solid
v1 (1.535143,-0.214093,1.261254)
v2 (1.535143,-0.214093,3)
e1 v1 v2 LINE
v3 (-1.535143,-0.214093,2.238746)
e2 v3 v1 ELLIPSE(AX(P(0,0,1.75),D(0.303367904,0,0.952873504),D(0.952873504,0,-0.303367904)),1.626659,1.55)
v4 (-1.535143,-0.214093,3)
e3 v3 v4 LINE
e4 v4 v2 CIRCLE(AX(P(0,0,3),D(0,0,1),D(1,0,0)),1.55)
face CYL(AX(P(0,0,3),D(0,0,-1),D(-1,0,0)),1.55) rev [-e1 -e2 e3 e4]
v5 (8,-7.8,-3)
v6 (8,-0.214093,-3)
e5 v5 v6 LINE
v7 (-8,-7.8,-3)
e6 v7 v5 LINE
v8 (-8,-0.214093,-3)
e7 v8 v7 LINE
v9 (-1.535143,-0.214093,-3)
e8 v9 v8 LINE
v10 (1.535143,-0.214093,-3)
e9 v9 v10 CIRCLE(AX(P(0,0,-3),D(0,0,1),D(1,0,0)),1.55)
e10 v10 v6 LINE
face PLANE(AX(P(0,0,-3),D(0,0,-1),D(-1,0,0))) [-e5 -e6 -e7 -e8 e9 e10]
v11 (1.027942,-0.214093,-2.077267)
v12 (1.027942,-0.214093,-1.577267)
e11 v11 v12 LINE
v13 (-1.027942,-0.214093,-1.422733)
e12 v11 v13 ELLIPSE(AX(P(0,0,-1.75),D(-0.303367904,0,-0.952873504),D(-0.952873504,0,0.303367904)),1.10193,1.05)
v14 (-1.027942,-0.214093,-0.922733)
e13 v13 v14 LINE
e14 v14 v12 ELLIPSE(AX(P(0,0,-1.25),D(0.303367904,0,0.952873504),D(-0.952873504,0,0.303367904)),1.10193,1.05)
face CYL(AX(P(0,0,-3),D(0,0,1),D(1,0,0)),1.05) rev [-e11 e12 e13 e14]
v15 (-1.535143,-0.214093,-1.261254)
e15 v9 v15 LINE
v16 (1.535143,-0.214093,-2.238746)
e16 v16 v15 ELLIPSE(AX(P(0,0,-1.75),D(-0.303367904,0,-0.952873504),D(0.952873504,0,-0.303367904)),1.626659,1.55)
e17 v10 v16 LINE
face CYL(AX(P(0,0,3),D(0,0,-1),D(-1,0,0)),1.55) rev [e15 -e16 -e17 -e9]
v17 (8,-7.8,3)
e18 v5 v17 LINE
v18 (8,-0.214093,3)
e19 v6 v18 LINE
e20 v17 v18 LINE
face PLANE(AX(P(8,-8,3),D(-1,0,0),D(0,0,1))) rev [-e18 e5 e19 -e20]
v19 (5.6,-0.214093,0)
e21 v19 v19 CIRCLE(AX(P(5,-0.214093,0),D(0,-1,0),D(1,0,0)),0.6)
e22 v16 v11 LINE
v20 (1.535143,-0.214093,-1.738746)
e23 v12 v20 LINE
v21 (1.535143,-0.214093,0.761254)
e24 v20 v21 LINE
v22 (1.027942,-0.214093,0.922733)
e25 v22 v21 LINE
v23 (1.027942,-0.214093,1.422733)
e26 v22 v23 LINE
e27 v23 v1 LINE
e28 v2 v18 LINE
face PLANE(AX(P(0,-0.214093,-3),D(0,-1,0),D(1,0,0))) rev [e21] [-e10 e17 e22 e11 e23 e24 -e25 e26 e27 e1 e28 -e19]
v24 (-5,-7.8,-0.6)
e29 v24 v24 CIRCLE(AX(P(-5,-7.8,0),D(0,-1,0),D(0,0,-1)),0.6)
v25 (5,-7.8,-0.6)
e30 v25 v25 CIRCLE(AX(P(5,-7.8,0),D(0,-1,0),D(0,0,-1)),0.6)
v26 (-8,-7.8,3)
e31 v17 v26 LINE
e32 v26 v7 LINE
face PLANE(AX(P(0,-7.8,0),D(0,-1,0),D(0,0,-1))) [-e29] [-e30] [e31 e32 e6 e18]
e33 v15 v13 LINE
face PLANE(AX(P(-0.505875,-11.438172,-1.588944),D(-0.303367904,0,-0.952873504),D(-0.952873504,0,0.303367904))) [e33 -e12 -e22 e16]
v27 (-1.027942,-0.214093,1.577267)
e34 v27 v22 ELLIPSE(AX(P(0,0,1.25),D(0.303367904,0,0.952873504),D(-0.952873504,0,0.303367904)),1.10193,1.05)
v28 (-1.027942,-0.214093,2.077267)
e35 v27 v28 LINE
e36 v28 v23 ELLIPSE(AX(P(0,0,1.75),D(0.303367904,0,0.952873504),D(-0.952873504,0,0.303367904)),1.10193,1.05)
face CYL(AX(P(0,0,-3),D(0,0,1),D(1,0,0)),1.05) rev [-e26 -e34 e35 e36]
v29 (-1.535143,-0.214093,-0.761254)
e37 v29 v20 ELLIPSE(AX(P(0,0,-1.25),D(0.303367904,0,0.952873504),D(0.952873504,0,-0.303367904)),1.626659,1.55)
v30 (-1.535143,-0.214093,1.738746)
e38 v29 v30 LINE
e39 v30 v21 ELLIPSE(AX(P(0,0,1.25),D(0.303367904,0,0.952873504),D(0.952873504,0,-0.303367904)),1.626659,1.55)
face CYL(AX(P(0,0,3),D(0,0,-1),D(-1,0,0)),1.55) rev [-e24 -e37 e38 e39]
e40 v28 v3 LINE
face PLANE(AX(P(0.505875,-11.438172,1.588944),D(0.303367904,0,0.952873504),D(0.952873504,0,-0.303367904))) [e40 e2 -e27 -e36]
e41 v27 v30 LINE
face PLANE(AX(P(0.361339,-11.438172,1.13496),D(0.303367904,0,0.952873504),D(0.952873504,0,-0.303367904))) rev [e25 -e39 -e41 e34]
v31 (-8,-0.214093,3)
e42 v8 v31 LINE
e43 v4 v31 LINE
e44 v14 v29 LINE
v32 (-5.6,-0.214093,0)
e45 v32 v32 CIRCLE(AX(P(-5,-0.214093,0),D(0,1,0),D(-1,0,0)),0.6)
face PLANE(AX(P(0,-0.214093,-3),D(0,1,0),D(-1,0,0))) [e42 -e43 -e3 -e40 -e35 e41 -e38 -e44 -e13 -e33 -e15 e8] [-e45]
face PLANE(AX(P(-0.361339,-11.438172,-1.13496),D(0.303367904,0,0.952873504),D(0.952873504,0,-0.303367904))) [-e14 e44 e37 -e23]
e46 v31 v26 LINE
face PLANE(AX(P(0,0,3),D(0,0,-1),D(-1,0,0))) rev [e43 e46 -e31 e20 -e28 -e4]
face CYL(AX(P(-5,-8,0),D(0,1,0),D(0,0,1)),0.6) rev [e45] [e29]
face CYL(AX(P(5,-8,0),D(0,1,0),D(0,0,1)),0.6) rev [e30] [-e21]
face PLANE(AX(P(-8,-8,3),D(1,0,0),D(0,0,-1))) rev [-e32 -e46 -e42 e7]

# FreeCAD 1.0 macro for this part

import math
import FreeCAD as App
import Part
import Sketcher

V = App.Vector
Q = App.Units.Quantity


def add_polygon(sketch, points):
    """Adds a closed chain of lines whose ends are joined by coincident constraints."""
    first, n = sketch.GeometryCount, len(points)
    for a, b in zip(points, points[1:] + points[:1]):
        sketch.addGeometry(Part.LineSegment(App.Vector(*a, 0), App.Vector(*b, 0)), False)
    for i in range(n):
        sketch.addConstraint(Sketcher.Constraint("Coincident", first + i, 2, first + (i + 1) % n, 1))

doc = App.newDocument("Part")
params = doc.addObject("Spreadsheet::Sheet", "Params")
for row, (alias, value) in enumerate([
    ("sketch1_diameter", "3.1 mm"),
    ("sketch1_width", "16 mm"),
    ("pad1_length", "6 mm"),
    ("sketch2_height", "0.5 mm"),
    ("pad2_length", "8 mm"),
    ("sketch3_width", "16 mm"),
    ("sketch3_radius", "1.05 mm"),
    ("sketch4_diameter", "1.2 mm"),
    ("sketch5_diameter", "1.2 mm"),
    ("sketch5_width", "16 mm"),
    ("sketch5_height", "6 mm"),
    ("pocket3_length", "0.2 mm"),
], start=1):
    params.set(f"A{row}", alias)
    params.set(f"B{row}", "=" + value)
    params.setAlias(f"B{row}", alias)

body = doc.addObject("PartDesign::Body", "Body")

# Sketch on XY plane
sketch1 = body.newObject("Sketcher::SketchObject", "Sketch")
sketch1.AttachmentSupport = (doc.getObject("XY_Plane"), [""])
sketch1.MapMode = "FlatFace"
add_polygon(sketch1, [(-8, 8), (-8, -8), (8, -8), (8, 8)])  # lines 0-3
sketch1.addGeometry(Part.Circle(V(0, 0, 0), V(0, 0, 1), 1.6), False)  # 4
sketch1.addConstraint([
    Sketcher.Constraint("Vertical", 0),
    Sketcher.Constraint("Horizontal", 1),
    Sketcher.Constraint("Vertical", 2),
    Sketcher.Constraint("Horizontal", 3),
    Sketcher.Constraint("Coincident", 4, 3, -1, 1),
    Sketcher.Constraint("Symmetric", 0, 2, 2, 2, -1, 1),
    Sketcher.Constraint("Equal", 3, 0),
    Sketcher.Constraint("Diameter", 4, 3.1),
    Sketcher.Constraint("DistanceX", 1, 1, 1, 2, 16.0),
])
sketch1.setExpression("Constraints[11]", "Params.sketch1_diameter")
sketch1.setExpression("Constraints[12]", "Params.sketch1_width")
pad1 = body.newObject("PartDesign::Pad", "Pad")
pad1.Profile = sketch1
pad1.setExpression("Length", "Params.pad1_length")
pad1.Midplane = True

# Sketch on XZ plane
sketch2 = body.newObject("Sketcher::SketchObject", "Sketch001")
sketch2.AttachmentSupport = (doc.getObject("XZ_Plane"), [""])
sketch2.MapMode = "FlatFace"
add_polygon(sketch2, [(-1.55, 1.74), (-1.55, 2.24), (1.55, 1.26), (1.55, 0.76)])  # lines 0-3
add_polygon(sketch2, [(-1.55, -1.26), (-1.55, -0.76), (1.55, -1.74), (1.55, -2.24)])  # lines 4-7
sketch2.addConstraint([
    Sketcher.Constraint("Vertical", 0),
    Sketcher.Constraint("Vertical", 2),
    Sketcher.Constraint("Vertical", 4),
    Sketcher.Constraint("Vertical", 6),
    Sketcher.Constraint("Symmetric", 2, 2, 4, 2, -1, 1),
    Sketcher.Constraint("Symmetric", 3, 2, 5, 2, -1, 1),
    Sketcher.Constraint("Parallel", 1, 3),
    Sketcher.Constraint("Parallel", 5, 7),
    Sketcher.Constraint("Vertical", 3, 2, 4, 2),
    Sketcher.Constraint("Equal", 2, 4),
    Sketcher.Constraint("DistanceY", 0, 1, 0, 2, 0.5),
    Sketcher.Constraint("DistanceY", 4, 2, 0, 2, 3.0),
    Sketcher.Constraint("Angle", 1, Q("-17.66 deg")),
    Sketcher.Constraint("DistanceX", 0, 2, 1, 2, 3.1),
])
sketch2.setExpression("Constraints[18]", "Params.sketch2_height")
pad2 = body.newObject("PartDesign::Pad", "Pad001")
pad2.Profile = sketch2
pad2.setExpression("Length", "Params.pad2_length")

# Sketch on XY plane
sketch3 = body.newObject("Sketcher::SketchObject", "Sketch002")
sketch3.AttachmentSupport = (doc.getObject("XY_Plane"), [""])
sketch3.MapMode = "FlatFace"
sketch3.addGeometry([
    Part.LineSegment(V(8, 8, 0), V(-8, 8, 0)),  # 0
    Part.LineSegment(V(-8, 8, 0), V(-8, -0.2, 0)),  # 1
    Part.LineSegment(V(-8, -0.2, 0), V(-1, -0.2, 0)),  # 2
    Part.ArcOfCircle(Part.Circle(V(0, 0, 0), V(0, 0, 1), 1.1), math.radians(-168), math.radians(-12)),  # 3
    Part.LineSegment(V(1, -0.2, 0), V(8, -0.2, 0)),  # 4
    Part.LineSegment(V(8, -0.2, 0), V(8, 8, 0)),  # 5
], False)
sketch3.addConstraint([
    Sketcher.Constraint("Coincident", 0, 2, 1, 1),
    Sketcher.Constraint("Coincident", 1, 2, 2, 1),
    Sketcher.Constraint("Coincident", 2, 2, 3, 1),
    Sketcher.Constraint("Coincident", 3, 2, 4, 1),
    Sketcher.Constraint("Coincident", 4, 2, 5, 1),
    Sketcher.Constraint("Coincident", 5, 2, 0, 1),
    Sketcher.Constraint("Horizontal", 0),
    Sketcher.Constraint("Vertical", 1),
    Sketcher.Constraint("Horizontal", 2),
    Sketcher.Constraint("Horizontal", 4),
    Sketcher.Constraint("Vertical", 5),
    Sketcher.Constraint("Coincident", 3, 3, -1, 1),
    Sketcher.Constraint("Symmetric", 1, 2, 4, 2, -2),
    Sketcher.Constraint("DistanceX", 0, 2, 0, 1, 16.0),
    Sketcher.Constraint("Radius", 3, 1.05),
    Sketcher.Constraint("DistanceY", -1, 1, 0, 2, 8.0),
    Sketcher.Constraint("DistanceX", 2, 1, 2, 2, 6.972058),
])
sketch3.setExpression("Constraints[13]", "Params.sketch3_width")
sketch3.setExpression("Constraints[14]", "Params.sketch3_radius")
pocket1 = body.newObject("PartDesign::Pocket", "Pocket")
pocket1.Profile = sketch3
pocket1.Type = "ThroughAll"
pocket1.Midplane = True

# Sketch on XZ plane
sketch4 = body.newObject("Sketcher::SketchObject", "Sketch003")
sketch4.AttachmentSupport = (doc.getObject("XZ_Plane"), [""])
sketch4.MapMode = "FlatFace"
sketch4.addGeometry([
    Part.Circle(V(-5, 0, 0), V(0, 0, 1), 0.6),
    Part.Circle(V(5, 0, 0), V(0, 0, 1), 0.6),
], False)
sketch4.addConstraint([
    Sketcher.Constraint("Equal", 0, 1),
    Sketcher.Constraint("Symmetric", 0, 3, 1, 3, -1, 1),
    Sketcher.Constraint("PointOnObject", 0, 3, -1),
    Sketcher.Constraint("Diameter", 0, 1.2),
    Sketcher.Constraint("DistanceX", 0, 3, -1, 1, 5.0),
])
sketch4.setExpression("Constraints[3]", "Params.sketch4_diameter")
pocket2 = body.newObject("PartDesign::Pocket", "Pocket001")
pocket2.Profile = sketch4
pocket2.Type = "ThroughAll"
pocket2.Reversed = True

# Sketch on XZ plane
sketch5 = body.newObject("Sketcher::SketchObject", "Sketch004")
sketch5.AttachmentSupport = (doc.getObject("XZ_Plane"), [""])
sketch5.MapMode = "FlatFace"
sketch5.AttachmentOffset = App.Placement(V(0, 0, 7.8), App.Rotation())
add_polygon(sketch5, [(-8, 3), (-8, -3), (8, -3), (8, 3)])  # lines 0-3
sketch5.addGeometry(Part.Circle(V(-5, 0, 0), V(0, 0, 1), 0.6), False)  # 4
sketch5.addGeometry(Part.Circle(V(5, 0, 0), V(0, 0, 1), 0.6), False)  # 5
sketch5.addConstraint([
    Sketcher.Constraint("Vertical", 0),
    Sketcher.Constraint("Horizontal", 1),
    Sketcher.Constraint("Vertical", 2),
    Sketcher.Constraint("Horizontal", 3),
    Sketcher.Constraint("Equal", 4, 5),
    Sketcher.Constraint("Symmetric", 4, 3, 5, 3, -1, 1),
    Sketcher.Constraint("Symmetric", 0, 2, 2, 2, -1, 1),
    Sketcher.Constraint("PointOnObject", 4, 3, -1),
    Sketcher.Constraint("Diameter", 4, 1.2),
    Sketcher.Constraint("DistanceX", 1, 1, 1, 2, 16.0),
    Sketcher.Constraint("DistanceY", 0, 2, 0, 1, 6.0),
    Sketcher.Constraint("DistanceX", 4, 3, -1, 1, 5.0),
])
sketch5.setExpression("Constraints[12]", "Params.sketch5_diameter")
sketch5.setExpression("Constraints[13]", "Params.sketch5_width")
sketch5.setExpression("Constraints[14]", "Params.sketch5_height")
pocket3 = body.newObject("PartDesign::Pocket", "Pocket002")
pocket3.Profile = sketch5
pocket3.setExpression("Length", "Params.pocket3_length")
pocket3.Reversed = True

doc.recompute()
